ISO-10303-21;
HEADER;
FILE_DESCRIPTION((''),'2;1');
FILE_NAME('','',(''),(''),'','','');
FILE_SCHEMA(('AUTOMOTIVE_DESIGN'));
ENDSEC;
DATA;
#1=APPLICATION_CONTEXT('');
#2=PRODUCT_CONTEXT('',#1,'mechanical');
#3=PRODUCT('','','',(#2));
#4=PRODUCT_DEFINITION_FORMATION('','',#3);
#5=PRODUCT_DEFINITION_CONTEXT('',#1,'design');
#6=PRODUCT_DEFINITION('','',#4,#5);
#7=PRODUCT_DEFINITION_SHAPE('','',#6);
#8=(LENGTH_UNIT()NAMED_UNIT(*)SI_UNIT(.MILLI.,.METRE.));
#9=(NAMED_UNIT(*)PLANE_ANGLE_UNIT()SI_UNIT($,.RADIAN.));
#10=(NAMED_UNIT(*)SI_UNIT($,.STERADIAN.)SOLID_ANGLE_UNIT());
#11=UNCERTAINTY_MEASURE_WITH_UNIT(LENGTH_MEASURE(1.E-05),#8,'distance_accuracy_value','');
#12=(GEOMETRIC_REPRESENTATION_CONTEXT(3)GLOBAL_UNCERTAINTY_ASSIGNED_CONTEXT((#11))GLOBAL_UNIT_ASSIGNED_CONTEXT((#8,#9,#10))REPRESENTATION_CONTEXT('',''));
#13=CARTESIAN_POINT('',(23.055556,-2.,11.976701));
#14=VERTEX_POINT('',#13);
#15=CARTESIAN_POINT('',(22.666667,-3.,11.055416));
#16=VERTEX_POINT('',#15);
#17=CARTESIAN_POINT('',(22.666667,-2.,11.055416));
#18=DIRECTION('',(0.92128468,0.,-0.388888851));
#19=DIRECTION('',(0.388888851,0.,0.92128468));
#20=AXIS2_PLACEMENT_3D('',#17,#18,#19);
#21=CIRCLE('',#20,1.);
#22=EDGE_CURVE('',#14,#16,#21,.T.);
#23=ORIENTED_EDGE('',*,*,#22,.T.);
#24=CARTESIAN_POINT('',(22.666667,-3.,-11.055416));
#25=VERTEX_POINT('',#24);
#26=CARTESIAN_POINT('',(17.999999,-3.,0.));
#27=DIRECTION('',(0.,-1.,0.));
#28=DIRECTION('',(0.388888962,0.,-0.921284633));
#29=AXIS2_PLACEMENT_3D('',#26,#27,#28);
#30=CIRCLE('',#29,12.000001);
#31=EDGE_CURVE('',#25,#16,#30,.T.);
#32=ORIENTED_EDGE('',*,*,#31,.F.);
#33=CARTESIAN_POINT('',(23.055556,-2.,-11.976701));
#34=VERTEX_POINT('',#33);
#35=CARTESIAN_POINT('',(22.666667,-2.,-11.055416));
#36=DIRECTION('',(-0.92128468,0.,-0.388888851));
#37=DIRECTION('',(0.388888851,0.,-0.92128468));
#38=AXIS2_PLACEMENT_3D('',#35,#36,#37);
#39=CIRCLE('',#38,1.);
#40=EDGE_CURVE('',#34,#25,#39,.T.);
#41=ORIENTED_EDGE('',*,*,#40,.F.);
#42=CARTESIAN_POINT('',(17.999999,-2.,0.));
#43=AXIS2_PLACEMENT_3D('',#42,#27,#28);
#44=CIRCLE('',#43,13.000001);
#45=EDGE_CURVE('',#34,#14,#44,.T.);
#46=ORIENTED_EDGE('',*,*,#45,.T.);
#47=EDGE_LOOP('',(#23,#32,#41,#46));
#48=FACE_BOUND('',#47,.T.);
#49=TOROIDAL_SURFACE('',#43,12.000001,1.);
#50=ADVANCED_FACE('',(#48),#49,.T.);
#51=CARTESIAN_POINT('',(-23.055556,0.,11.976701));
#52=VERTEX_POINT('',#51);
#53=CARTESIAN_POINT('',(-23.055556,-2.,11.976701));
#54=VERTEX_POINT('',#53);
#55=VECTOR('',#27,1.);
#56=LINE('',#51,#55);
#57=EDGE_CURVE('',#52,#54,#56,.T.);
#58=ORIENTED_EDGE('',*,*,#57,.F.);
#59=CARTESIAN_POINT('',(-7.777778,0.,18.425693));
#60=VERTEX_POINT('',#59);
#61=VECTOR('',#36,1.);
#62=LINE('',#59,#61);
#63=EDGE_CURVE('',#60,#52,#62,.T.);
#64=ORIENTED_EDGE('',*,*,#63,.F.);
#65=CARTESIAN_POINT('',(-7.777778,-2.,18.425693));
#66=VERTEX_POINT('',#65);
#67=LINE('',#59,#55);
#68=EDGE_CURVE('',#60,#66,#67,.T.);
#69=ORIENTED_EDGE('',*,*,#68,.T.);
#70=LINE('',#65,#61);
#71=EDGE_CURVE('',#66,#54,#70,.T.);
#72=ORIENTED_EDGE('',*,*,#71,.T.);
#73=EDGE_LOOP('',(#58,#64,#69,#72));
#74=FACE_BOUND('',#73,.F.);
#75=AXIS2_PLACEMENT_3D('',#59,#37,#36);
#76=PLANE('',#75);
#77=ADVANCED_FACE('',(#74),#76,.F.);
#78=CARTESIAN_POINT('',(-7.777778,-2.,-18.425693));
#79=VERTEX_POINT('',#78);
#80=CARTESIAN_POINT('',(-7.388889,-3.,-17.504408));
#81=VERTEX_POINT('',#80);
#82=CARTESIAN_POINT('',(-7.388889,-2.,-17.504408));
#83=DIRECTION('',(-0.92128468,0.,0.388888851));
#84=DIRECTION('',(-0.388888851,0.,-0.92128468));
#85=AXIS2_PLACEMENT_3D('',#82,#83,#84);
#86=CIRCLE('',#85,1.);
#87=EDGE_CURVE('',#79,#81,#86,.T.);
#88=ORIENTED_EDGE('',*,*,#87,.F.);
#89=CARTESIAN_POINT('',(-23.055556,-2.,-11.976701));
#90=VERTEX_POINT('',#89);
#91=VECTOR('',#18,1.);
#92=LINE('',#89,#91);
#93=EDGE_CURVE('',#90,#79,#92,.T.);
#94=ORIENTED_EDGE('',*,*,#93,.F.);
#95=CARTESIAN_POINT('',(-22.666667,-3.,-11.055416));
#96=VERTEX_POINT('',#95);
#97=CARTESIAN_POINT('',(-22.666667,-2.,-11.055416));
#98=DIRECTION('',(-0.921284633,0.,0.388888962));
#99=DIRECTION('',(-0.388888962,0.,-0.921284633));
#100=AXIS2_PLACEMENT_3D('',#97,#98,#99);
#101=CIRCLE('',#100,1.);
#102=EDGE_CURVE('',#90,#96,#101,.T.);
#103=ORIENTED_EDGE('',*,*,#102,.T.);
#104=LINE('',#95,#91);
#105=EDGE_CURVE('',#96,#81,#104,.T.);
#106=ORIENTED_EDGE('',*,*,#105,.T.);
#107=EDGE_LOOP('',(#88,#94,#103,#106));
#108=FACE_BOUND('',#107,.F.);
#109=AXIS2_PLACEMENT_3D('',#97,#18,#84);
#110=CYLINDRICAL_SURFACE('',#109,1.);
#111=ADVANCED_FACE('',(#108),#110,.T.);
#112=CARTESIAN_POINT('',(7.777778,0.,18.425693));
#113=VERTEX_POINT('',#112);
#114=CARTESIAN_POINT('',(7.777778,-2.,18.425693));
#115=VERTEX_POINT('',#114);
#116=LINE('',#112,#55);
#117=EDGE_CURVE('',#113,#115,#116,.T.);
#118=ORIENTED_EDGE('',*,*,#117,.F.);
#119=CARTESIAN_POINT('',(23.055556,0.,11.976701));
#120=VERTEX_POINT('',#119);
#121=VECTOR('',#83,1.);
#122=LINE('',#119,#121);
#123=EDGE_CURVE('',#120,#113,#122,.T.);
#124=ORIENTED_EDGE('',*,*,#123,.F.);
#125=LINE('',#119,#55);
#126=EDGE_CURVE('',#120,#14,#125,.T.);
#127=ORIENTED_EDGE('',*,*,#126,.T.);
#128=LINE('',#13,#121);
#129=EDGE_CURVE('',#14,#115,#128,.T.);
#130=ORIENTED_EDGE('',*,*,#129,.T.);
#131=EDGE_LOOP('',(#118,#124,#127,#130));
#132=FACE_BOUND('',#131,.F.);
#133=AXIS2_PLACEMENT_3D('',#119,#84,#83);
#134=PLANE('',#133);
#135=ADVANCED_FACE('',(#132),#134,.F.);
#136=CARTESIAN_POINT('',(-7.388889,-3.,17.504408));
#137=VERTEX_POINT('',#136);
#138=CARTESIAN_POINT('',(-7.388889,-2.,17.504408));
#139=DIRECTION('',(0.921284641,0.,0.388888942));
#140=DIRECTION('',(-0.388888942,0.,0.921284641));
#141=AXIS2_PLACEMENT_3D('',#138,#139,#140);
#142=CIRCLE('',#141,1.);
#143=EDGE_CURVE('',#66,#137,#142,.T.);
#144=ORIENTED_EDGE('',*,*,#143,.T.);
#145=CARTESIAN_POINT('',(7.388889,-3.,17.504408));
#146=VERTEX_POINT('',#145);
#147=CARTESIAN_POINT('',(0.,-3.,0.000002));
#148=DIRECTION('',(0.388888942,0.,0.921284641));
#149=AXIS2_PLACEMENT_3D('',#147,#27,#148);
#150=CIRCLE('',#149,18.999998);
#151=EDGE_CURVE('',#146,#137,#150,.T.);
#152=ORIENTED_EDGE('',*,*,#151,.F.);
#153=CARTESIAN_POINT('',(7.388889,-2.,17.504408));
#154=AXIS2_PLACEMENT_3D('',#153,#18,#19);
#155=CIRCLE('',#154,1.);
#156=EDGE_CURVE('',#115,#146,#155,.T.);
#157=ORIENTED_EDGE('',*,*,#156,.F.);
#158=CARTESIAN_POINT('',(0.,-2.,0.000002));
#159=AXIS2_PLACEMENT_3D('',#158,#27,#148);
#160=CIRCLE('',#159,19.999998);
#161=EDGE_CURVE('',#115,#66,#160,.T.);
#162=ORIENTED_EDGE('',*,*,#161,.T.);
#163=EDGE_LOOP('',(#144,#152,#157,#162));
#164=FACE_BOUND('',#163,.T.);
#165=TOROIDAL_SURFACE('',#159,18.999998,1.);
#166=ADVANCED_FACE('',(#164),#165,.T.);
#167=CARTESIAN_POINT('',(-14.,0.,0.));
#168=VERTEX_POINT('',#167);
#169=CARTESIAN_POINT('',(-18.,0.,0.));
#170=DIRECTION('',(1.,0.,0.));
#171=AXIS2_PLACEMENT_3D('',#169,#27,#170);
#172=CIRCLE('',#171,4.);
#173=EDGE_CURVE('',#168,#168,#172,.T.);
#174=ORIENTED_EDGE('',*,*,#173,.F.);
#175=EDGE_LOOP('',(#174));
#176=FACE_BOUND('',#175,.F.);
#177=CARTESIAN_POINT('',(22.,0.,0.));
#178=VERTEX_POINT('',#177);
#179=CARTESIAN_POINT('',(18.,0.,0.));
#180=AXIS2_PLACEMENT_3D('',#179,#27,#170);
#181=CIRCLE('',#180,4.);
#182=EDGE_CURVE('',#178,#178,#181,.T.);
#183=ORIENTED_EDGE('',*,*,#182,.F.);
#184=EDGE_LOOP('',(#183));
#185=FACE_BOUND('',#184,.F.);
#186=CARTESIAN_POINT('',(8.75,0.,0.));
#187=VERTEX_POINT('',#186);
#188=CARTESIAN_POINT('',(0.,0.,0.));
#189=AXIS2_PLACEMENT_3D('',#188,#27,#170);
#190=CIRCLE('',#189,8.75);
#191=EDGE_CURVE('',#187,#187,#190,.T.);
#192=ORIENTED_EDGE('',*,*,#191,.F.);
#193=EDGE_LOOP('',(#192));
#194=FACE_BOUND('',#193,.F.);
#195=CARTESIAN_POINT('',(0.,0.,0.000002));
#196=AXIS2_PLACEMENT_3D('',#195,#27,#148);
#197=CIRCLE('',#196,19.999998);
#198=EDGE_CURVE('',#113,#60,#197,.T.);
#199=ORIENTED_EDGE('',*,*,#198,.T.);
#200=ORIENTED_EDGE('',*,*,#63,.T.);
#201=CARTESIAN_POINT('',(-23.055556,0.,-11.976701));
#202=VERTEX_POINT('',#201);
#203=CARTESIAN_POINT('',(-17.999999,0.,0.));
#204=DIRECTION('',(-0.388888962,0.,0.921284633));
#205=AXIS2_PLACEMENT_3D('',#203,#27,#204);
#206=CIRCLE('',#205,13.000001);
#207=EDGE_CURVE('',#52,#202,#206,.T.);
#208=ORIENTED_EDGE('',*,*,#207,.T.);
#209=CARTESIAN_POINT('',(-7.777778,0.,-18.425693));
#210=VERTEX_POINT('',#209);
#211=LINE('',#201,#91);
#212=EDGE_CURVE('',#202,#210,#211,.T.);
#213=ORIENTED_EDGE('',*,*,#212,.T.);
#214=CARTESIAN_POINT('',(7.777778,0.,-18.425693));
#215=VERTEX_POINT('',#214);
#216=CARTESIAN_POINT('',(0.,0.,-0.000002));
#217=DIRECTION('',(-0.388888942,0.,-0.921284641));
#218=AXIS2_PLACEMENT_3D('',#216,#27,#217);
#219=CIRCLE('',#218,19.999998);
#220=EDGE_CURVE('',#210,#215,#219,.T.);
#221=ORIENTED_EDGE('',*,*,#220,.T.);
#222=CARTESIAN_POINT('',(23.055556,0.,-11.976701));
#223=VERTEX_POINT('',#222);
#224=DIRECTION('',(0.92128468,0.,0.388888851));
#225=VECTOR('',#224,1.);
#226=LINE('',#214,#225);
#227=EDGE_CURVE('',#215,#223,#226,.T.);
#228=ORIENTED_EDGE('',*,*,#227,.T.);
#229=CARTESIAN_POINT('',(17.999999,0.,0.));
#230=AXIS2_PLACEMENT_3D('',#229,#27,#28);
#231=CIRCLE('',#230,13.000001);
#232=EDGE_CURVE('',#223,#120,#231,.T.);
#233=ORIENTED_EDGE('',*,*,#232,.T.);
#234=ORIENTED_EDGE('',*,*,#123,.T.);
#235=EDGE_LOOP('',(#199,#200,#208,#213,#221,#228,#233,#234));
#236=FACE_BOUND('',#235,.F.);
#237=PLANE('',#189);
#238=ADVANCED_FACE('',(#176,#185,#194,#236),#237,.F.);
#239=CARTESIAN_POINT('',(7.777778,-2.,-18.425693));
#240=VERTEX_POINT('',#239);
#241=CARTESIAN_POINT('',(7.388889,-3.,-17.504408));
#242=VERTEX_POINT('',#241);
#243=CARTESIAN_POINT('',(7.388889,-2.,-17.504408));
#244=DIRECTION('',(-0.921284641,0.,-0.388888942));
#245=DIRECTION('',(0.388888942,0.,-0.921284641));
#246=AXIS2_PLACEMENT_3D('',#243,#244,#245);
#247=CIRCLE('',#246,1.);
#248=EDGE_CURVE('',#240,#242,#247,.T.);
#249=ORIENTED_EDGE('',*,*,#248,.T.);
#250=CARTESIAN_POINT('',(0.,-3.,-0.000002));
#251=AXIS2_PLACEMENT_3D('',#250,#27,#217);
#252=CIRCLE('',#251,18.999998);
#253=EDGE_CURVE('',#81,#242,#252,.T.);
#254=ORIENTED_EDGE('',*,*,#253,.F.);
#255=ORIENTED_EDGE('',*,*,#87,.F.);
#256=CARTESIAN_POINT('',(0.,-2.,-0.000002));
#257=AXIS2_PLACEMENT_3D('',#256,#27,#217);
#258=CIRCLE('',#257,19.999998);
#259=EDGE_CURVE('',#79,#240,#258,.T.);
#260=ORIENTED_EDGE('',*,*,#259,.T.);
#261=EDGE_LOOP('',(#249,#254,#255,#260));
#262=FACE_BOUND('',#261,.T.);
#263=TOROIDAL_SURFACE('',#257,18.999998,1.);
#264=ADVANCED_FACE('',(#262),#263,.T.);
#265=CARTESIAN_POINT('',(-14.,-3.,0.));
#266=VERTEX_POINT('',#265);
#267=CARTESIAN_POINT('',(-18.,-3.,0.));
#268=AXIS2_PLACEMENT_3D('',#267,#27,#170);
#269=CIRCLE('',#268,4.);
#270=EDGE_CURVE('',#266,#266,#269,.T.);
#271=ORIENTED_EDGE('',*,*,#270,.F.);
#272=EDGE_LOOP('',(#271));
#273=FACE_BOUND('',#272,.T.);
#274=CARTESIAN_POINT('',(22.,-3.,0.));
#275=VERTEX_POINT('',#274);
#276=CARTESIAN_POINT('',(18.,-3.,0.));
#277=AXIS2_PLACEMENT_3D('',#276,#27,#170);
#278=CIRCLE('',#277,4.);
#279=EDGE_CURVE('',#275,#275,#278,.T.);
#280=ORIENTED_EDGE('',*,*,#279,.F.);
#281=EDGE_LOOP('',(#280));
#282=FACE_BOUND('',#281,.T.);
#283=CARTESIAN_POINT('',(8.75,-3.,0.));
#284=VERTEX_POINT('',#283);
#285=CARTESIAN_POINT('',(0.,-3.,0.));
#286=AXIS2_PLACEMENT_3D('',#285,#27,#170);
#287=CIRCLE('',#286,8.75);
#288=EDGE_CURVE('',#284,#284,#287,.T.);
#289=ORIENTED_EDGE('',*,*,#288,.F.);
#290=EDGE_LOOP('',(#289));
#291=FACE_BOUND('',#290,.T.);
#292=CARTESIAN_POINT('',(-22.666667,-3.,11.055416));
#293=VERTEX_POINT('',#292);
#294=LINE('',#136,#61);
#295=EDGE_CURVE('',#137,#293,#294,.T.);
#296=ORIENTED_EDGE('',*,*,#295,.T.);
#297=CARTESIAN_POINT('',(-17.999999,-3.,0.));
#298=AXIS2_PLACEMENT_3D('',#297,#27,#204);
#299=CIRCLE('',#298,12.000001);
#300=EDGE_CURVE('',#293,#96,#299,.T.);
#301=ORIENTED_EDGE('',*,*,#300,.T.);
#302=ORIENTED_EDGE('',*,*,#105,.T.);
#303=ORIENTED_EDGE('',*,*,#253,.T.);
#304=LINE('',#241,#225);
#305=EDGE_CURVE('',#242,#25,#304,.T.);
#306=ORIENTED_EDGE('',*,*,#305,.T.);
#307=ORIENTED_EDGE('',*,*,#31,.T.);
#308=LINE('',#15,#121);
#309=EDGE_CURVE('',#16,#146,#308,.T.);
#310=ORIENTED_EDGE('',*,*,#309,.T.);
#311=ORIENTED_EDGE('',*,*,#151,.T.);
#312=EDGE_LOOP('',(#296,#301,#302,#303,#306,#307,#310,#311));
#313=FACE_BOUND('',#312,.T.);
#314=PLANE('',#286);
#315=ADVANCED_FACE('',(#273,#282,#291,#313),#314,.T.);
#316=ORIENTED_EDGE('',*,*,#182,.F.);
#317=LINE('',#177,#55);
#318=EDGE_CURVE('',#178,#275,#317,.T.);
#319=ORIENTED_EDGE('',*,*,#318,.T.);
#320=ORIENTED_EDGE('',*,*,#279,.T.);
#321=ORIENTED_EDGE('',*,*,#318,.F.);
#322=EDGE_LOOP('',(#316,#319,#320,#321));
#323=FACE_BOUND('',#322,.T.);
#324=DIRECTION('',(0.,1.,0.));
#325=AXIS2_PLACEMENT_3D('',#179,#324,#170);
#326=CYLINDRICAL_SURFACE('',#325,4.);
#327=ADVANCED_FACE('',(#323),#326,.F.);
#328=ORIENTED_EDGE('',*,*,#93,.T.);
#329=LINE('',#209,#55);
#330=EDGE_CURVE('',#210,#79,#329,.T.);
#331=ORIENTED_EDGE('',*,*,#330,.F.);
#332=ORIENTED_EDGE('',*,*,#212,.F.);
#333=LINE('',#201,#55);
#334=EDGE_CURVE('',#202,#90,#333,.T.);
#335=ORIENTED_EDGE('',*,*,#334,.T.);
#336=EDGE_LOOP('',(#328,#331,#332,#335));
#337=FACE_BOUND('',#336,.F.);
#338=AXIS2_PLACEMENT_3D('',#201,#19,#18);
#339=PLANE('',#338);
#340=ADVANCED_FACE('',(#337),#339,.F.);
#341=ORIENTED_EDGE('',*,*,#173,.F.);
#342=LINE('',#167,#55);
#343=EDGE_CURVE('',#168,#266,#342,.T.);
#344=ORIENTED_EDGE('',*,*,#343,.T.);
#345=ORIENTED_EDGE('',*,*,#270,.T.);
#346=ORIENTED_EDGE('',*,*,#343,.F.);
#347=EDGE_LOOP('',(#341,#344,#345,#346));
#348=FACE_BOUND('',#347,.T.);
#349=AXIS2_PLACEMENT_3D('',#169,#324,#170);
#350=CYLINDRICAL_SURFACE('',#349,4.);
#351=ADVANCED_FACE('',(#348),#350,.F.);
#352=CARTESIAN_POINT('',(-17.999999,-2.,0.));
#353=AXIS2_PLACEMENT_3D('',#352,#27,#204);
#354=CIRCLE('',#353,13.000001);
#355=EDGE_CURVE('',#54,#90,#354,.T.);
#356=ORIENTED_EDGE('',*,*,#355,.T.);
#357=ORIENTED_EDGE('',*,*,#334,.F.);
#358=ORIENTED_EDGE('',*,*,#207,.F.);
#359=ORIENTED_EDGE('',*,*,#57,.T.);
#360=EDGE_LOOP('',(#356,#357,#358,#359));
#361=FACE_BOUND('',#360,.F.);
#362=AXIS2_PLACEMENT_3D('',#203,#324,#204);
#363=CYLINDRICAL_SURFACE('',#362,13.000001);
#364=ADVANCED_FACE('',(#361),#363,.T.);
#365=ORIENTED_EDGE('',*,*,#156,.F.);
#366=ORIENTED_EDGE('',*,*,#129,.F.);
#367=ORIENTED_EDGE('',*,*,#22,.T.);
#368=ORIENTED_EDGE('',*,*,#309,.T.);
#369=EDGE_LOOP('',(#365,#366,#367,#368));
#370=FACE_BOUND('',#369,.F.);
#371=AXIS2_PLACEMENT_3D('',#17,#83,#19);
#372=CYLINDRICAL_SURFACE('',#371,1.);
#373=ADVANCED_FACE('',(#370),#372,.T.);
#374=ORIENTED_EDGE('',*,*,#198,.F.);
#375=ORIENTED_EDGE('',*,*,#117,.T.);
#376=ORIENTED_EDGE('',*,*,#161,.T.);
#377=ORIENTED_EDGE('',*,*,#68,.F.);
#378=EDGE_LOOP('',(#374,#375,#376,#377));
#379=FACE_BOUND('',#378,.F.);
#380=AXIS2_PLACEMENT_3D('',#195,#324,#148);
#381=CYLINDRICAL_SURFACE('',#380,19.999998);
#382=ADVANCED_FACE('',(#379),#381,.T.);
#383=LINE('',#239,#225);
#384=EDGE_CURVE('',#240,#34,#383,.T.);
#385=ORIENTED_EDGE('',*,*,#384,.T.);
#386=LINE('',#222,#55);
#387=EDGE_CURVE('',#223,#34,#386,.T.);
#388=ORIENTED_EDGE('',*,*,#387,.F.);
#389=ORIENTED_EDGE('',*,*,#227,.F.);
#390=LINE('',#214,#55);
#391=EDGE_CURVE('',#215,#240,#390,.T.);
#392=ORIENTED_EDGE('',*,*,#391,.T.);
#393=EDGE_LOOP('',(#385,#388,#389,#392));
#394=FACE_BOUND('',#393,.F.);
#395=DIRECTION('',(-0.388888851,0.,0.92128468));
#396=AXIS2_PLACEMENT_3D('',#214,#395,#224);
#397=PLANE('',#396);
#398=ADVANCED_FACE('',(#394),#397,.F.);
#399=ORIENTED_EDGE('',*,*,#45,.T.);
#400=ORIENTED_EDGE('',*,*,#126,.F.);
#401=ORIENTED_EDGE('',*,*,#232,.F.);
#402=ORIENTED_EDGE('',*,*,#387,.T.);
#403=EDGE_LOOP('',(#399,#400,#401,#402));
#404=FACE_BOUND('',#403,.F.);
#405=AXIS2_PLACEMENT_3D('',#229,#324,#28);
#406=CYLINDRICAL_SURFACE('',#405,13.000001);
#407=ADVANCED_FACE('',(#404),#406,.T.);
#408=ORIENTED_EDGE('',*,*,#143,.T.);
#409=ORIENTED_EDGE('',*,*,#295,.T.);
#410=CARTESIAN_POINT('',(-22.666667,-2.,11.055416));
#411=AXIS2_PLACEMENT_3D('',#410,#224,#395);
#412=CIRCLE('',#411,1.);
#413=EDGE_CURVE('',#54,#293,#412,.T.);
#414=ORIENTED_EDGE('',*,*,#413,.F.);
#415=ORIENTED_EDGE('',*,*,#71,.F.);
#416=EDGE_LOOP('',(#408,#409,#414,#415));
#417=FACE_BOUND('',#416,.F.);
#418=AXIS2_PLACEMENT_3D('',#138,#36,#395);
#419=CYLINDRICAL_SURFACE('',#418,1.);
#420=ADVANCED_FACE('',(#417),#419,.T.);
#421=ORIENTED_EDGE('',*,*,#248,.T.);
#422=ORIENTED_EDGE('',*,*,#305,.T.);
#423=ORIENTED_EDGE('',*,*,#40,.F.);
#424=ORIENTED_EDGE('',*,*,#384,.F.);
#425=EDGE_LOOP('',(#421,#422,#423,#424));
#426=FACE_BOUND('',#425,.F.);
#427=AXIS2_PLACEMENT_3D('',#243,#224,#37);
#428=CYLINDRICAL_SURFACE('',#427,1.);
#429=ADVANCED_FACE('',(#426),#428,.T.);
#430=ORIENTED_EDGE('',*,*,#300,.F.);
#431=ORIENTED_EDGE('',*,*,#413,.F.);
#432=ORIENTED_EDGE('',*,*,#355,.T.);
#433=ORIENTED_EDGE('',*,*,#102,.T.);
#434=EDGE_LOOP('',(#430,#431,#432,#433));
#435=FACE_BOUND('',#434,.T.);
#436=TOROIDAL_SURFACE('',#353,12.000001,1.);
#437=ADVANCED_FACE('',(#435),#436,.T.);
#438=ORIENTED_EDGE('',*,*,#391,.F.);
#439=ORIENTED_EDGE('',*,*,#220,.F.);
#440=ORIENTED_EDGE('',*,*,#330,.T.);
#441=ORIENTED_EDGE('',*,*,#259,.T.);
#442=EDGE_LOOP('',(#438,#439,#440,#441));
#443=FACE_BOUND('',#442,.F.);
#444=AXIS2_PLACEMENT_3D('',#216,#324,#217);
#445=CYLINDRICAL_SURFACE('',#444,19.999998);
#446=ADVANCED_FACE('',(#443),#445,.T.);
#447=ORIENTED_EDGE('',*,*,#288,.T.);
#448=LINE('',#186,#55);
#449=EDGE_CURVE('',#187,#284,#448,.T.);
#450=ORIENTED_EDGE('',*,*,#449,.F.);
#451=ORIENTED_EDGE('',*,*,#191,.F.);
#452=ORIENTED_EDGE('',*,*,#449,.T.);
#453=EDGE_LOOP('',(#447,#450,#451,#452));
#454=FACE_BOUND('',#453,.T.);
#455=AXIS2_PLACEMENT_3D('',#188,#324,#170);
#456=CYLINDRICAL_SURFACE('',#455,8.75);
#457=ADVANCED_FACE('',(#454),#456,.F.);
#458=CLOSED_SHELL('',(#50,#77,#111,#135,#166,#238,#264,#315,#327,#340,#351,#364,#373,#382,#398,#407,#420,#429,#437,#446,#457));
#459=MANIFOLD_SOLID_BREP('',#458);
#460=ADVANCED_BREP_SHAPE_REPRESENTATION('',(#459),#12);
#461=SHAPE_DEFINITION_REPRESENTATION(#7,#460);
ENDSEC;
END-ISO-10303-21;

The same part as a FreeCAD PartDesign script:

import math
import FreeCAD as App
import Part
import Sketcher
from FreeCAD import Vector


def edges_at(feature, points):
    """Names of the edges that pass closest to the given points."""
    edges = feature.Shape.Edges
    near = lambda p: min(range(len(edges)), key=lambda i: edges[i].distToShape(Part.Vertex(*p))[0])
    return sorted({f"Edge{near(p) + 1}" for p in points})

doc = App.newDocument("Part")
body = doc.addObject("PartDesign::Body", "Body")

sketch1 = body.newObject("Sketcher::SketchObject", "Sketch")
sketch1.AttachmentSupport = (doc.getObject("XZ_Plane"), [""])
sketch1.MapMode = "FlatFace"
sketch1.addGeometry([
    Part.LineSegment(Vector(-23.055556, -11.976701, 0), Vector(-7.777778, -18.425693, 0)),
    Part.ArcOfCircle(Part.Circle(Vector(0, -0.000002, 0), Vector(0, 0, 1), 19.999998), math.radians(-112.885384), math.radians(-67.114616)),
    Part.LineSegment(Vector(7.777778, -18.425693, 0), Vector(23.055556, -11.976701, 0)),
    Part.ArcOfCircle(Part.Circle(Vector(17.999999, 0, 0), Vector(0, 0, 1), 13.000001), math.radians(-67.114615), math.radians(67.114615)),
    Part.LineSegment(Vector(23.055556, 11.976701, 0), Vector(7.777778, 18.425693, 0)),
    Part.ArcOfCircle(Part.Circle(Vector(0, 0.000002, 0), Vector(0, 0, 1), 19.999998), math.radians(67.114616), math.radians(112.885384)),
    Part.LineSegment(Vector(-7.777778, 18.425693, 0), Vector(-23.055556, 11.976701, 0)),
    Part.ArcOfCircle(Part.Circle(Vector(-17.999999, 0, 0), Vector(0, 0, 1), 13.000001), math.radians(112.885385), math.radians(247.114615)),
    Part.Circle(Vector(-18, 0, 0), Vector(0, 0, 1), 4),
    Part.Circle(Vector(0, 0, 0), Vector(0, 0, 1), 8.75),
    Part.Circle(Vector(18, 0, 0), Vector(0, 0, 1), 4),
], False)
sketch1.addConstraint([
    Sketcher.Constraint("Tangent", 0, 2, 1, 1),
    Sketcher.Constraint("Tangent", 1, 2, 2, 1),
    Sketcher.Constraint("Tangent", 2, 2, 3, 1),
    Sketcher.Constraint("Tangent", 3, 2, 4, 1),
    Sketcher.Constraint("Tangent", 4, 2, 5, 1),
    Sketcher.Constraint("Tangent", 5, 2, 6, 1),
    Sketcher.Constraint("Tangent", 6, 2, 7, 1),
    Sketcher.Constraint("Tangent", 7, 2, 0, 1),
    Sketcher.Constraint("Coincident", 1, 3, -1, 1),
    Sketcher.Constraint("Coincident", 5, 3, -1, 1),
    Sketcher.Constraint("Coincident", 9, 3, -1, 1),
    Sketcher.Constraint("Coincident", 8, 3, 7, 3),
    Sketcher.Constraint("Coincident", 10, 3, 3, 3),
    Sketcher.Constraint("Equal", 1, 5),
    Sketcher.Constraint("Equal", 3, 7),
    Sketcher.Constraint("Equal", 8, 10),
    Sketcher.Constraint("Symmetric", 3, 3, 7, 3, -1, 1),
    Sketcher.Constraint("PointOnObject", 3, 3, -1),
    Sketcher.Constraint("Diameter", 8, 8.0),
    Sketcher.Constraint("Radius", 3, 13.000001),
    Sketcher.Constraint("Diameter", 9, 17.5),
    Sketcher.Constraint("DistanceX", -1, 1, 3, 3, 17.999999),
    Sketcher.Constraint("Radius", 1, 19.999998),
])
pad1 = body.newObject("PartDesign::Pad", "Pad")
pad1.Profile = sketch1
pad1.Length = 3
doc.recompute()

fillet = body.newObject("PartDesign::Fillet", "Fillet")
fillet.Base = (pad1, edges_at(pad1, [(15.417, -3, 15.201)]))
fillet.Radius = 1

doc.recompute()
